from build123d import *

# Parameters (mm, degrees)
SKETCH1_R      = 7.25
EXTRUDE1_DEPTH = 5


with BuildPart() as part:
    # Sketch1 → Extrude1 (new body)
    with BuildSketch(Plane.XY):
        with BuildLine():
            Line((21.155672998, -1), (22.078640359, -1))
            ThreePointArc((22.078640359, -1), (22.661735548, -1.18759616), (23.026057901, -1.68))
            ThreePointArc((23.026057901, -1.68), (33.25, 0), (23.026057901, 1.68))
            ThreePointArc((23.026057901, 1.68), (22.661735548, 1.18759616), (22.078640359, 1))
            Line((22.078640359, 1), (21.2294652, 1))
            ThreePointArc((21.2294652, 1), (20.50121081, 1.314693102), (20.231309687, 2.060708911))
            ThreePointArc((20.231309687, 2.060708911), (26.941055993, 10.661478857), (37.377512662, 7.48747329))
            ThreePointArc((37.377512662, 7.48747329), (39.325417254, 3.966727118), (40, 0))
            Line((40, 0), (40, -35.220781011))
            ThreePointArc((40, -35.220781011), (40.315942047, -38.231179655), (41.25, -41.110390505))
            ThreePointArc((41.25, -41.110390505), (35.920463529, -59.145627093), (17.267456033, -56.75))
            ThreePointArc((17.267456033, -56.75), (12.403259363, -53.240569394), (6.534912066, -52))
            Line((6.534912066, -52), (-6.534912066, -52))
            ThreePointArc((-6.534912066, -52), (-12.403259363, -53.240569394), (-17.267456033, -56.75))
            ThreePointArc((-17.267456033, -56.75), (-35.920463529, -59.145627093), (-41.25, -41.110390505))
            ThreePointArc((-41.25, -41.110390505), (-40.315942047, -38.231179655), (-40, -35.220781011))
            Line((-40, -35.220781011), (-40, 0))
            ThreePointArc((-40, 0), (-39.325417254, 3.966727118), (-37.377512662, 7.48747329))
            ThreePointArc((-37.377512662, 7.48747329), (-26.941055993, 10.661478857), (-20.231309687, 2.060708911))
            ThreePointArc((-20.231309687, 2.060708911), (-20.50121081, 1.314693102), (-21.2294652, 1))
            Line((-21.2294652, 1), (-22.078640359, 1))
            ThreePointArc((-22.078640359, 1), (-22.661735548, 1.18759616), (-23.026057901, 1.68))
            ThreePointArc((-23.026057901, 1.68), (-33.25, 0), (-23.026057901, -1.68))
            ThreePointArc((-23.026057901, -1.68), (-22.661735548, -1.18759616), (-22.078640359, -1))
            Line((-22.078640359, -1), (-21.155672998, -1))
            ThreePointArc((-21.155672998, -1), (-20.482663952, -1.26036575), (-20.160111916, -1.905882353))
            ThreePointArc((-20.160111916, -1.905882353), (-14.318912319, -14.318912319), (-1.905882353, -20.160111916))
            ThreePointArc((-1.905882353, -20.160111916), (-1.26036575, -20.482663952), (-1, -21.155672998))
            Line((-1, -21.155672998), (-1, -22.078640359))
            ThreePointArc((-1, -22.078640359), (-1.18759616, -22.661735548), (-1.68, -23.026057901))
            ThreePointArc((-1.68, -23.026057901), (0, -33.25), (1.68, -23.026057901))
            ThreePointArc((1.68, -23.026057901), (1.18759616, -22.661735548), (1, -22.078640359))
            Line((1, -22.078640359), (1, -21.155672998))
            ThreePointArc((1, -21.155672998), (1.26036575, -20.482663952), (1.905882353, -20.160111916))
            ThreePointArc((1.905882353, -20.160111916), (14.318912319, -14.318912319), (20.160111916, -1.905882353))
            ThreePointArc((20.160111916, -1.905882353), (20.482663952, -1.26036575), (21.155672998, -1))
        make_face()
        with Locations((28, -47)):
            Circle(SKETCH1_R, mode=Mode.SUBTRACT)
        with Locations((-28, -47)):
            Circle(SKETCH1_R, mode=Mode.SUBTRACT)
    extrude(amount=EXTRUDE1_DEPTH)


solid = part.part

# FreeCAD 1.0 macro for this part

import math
import FreeCAD as App
import Part
import Sketcher

V = App.Vector
Q = App.Units.Quantity

doc = App.newDocument("Part")
body = doc.addObject("PartDesign::Body", "Body")

sketch1 = doc.addObject("Sketcher::SketchObject", "Sketch")
body.addObject(sketch1)
sketch1.AttachmentSupport = (doc.XY_Plane, [""])
sketch1.MapMode = "FlatFace"
sketch1.addGeometry(Part.LineSegment(V(22.07864, -1, 0), V(21.155673, -1, 0)), False)
sketch1.addGeometry(Part.ArcOfCircle(Part.Circle(V(21.155673, -2, 0), V(0, 0, 1), 1), math.radians(90), math.radians(174.599463)), False)
sketch1.addGeometry(Part.ArcOfCircle(Part.Circle(V(0, 0, 0), V(0, 0, 1), 20.25), math.radians(-84.599463), math.radians(-5.400537)), False)
sketch1.addGeometry(Part.ArcOfCircle(Part.Circle(V(2, -21.155673, 0), V(0, 0, 1), 1), math.radians(95.400537), math.radians(180)), False)
sketch1.addGeometry(Part.LineSegment(V(1, -21.155673, 0), V(1, -22.07864, 0)), False)
sketch1.addGeometry(Part.ArcOfCircle(Part.Circle(V(2, -22.07864, 0), V(0, 0, 1), 1), math.radians(-180), math.radians(-108.662925)), False)
sketch1.addGeometry(Part.ArcOfCircle(Part.Circle(V(0, -28, 0), V(0, 0, 1), 5.25), math.radians(108.662925), math.radians(431.337075)), False)
sketch1.addGeometry(Part.ArcOfCircle(Part.Circle(V(-2, -22.07864, 0), V(0, 0, 1), 1), math.radians(-71.337075), math.radians(0)), False)
sketch1.addGeometry(Part.LineSegment(V(-1, -22.07864, 0), V(-1, -21.155673, 0)), False)
sketch1.addGeometry(Part.ArcOfCircle(Part.Circle(V(-2, -21.155673, 0), V(0, 0, 1), 1), math.radians(0), math.radians(84.599463)), False)
sketch1.addGeometry(Part.ArcOfCircle(Part.Circle(V(0, 0, 0), V(0, 0, 1), 20.25), math.radians(-174.599463), math.radians(-95.400537)), False)
sketch1.addGeometry(Part.ArcOfCircle(Part.Circle(V(-21.155673, -2, 0), V(0, 0, 1), 1), math.radians(5.400537), math.radians(90)), False)
sketch1.addGeometry(Part.LineSegment(V(-21.155673, -1, 0), V(-22.07864, -1, 0)), False)
sketch1.addGeometry(Part.ArcOfCircle(Part.Circle(V(-22.07864, -2, 0), V(0, 0, 1), 1), math.radians(90), math.radians(161.337075)), False)
sketch1.addGeometry(Part.ArcOfCircle(Part.Circle(V(-28, 0, 0), V(0, 0, 1), 5.25), math.radians(18.662925), math.radians(341.337075)), False)
sketch1.addGeometry(Part.ArcOfCircle(Part.Circle(V(-22.07864, 2, 0), V(0, 0, 1), 1), math.radians(-161.337075), math.radians(-90)), False)
sketch1.addGeometry(Part.LineSegment(V(-22.07864, 1, 0), V(-21.229465, 1, 0)), False)
sketch1.addGeometry(Part.ArcOfCircle(Part.Circle(V(-21.229465, 2, 0), V(0, 0, 1), 1), math.radians(-90), math.radians(3.480505)), False)
sketch1.addGeometry(Part.ArcOfCircle(Part.Circle(V(-29.848321, 1.475792, 0), V(0, 0, 1), 9.634783), math.radians(3.480505), math.radians(141.394391)), False)
sketch1.addGeometry(Part.ArcOfCircle(Part.Circle(V(-28, 0, 0), V(0, 0, 1), 12), math.radians(141.394391), math.radians(180)), False)
sketch1.addGeometry(Part.LineSegment(V(-40, 0, 0), V(-40, -35.220781, 0)), False)
sketch1.addGeometry(Part.ArcOfCircle(Part.Circle(V(-54.5, -35.220781, 0), V(0, 0, 1), 14.5), math.radians(-23.965091), math.radians(0)), False)
sketch1.addGeometry(Part.ArcOfCircle(Part.Circle(V(-28, -47, 0), V(0, 0, 1), 14.5), math.radians(156.034909), math.radians(317.746363)), False)
sketch1.addGeometry(Part.ArcOfCircle(Part.Circle(V(-6.534912, -66.5, 0), V(0, 0, 1), 14.5), math.radians(90), math.radians(137.746363)), False)
sketch1.addGeometry(Part.LineSegment(V(-6.534912, -52, 0), V(6.534912, -52, 0)), False)
sketch1.addGeometry(Part.ArcOfCircle(Part.Circle(V(6.534912, -66.5, 0), V(0, 0, 1), 14.5), math.radians(42.253637), math.radians(90)), False)
sketch1.addGeometry(Part.ArcOfCircle(Part.Circle(V(28, -47, 0), V(0, 0, 1), 14.5), math.radians(-137.746363), math.radians(23.965091)), False)
sketch1.addGeometry(Part.ArcOfCircle(Part.Circle(V(54.5, -35.220781, 0), V(0, 0, 1), 14.5), math.radians(180), math.radians(203.965091)), False)
sketch1.addGeometry(Part.LineSegment(V(40, -35.220781, 0), V(40, 0, 0)), False)
sketch1.addGeometry(Part.ArcOfCircle(Part.Circle(V(28, 0, 0), V(0, 0, 1), 12), math.radians(0), math.radians(38.605609)), False)
sketch1.addGeometry(Part.ArcOfCircle(Part.Circle(V(29.848321, 1.475792, 0), V(0, 0, 1), 9.634783), math.radians(38.605609), math.radians(176.519495)), False)
sketch1.addGeometry(Part.ArcOfCircle(Part.Circle(V(21.229465, 2, 0), V(0, 0, 1), 1), math.radians(176.519495), math.radians(270)), False)
sketch1.addGeometry(Part.LineSegment(V(21.229465, 1, 0), V(22.07864, 1, 0)), False)
sketch1.addGeometry(Part.ArcOfCircle(Part.Circle(V(22.07864, 2, 0), V(0, 0, 1), 1), math.radians(-90), math.radians(-18.662925)), False)
sketch1.addGeometry(Part.ArcOfCircle(Part.Circle(V(28, 0, 0), V(0, 0, 1), 5.25), math.radians(-161.337075), math.radians(161.337075)), False)
sketch1.addGeometry(Part.ArcOfCircle(Part.Circle(V(22.07864, -2, 0), V(0, 0, 1), 1), math.radians(18.662925), math.radians(90)), False)
sketch1.addGeometry(Part.Circle(V(28, -47, 0), V(0, 0, 1), 7.25), False)
sketch1.addGeometry(Part.Circle(V(-28, -47, 0), V(0, 0, 1), 7.25), False)
sketch1.addConstraint(Sketcher.Constraint("Tangent", 0, 2, 1, 1))
sketch1.addConstraint(Sketcher.Constraint("Tangent", 1, 2, 2, 2))
sketch1.addConstraint(Sketcher.Constraint("Tangent", 2, 1, 3, 1))
sketch1.addConstraint(Sketcher.Constraint("Tangent", 3, 2, 4, 1))
sketch1.addConstraint(Sketcher.Constraint("Tangent", 4, 2, 5, 1))
sketch1.addConstraint(Sketcher.Constraint("Tangent", 5, 2, 6, 2))
sketch1.addConstraint(Sketcher.Constraint("Tangent", 6, 1, 7, 1))
sketch1.addConstraint(Sketcher.Constraint("Tangent", 7, 2, 8, 1))
sketch1.addConstraint(Sketcher.Constraint("Tangent", 8, 2, 9, 1))
sketch1.addConstraint(Sketcher.Constraint("Tangent", 9, 2, 10, 2))
sketch1.addConstraint(Sketcher.Constraint("Tangent", 10, 1, 11, 1))
sketch1.addConstraint(Sketcher.Constraint("Tangent", 11, 2, 12, 1))
sketch1.addConstraint(Sketcher.Constraint("Tangent", 12, 2, 13, 1))
sketch1.addConstraint(Sketcher.Constraint("Tangent", 13, 2, 14, 2))
sketch1.addConstraint(Sketcher.Constraint("Tangent", 14, 1, 15, 1))
sketch1.addConstraint(Sketcher.Constraint("Tangent", 15, 2, 16, 1))
sketch1.addConstraint(Sketcher.Constraint("Tangent", 16, 2, 17, 1))
sketch1.addConstraint(Sketcher.Constraint("Tangent", 17, 2, 18, 1))
sketch1.addConstraint(Sketcher.Constraint("Tangent", 18, 2, 19, 1))
sketch1.addConstraint(Sketcher.Constraint("Tangent", 19, 2, 20, 1))
sketch1.addConstraint(Sketcher.Constraint("Tangent", 20, 2, 21, 2))
sketch1.addConstraint(Sketcher.Constraint("Tangent", 21, 1, 22, 1))
sketch1.addConstraint(Sketcher.Constraint("Tangent", 22, 2, 23, 2))
sketch1.addConstraint(Sketcher.Constraint("Tangent", 23, 1, 24, 1))
sketch1.addConstraint(Sketcher.Constraint("Tangent", 24, 2, 25, 2))
sketch1.addConstraint(Sketcher.Constraint("Tangent", 25, 1, 26, 1))
sketch1.addConstraint(Sketcher.Constraint("Tangent", 26, 2, 27, 2))
sketch1.addConstraint(Sketcher.Constraint("Tangent", 27, 1, 28, 1))
sketch1.addConstraint(Sketcher.Constraint("Tangent", 28, 2, 29, 1))
sketch1.addConstraint(Sketcher.Constraint("Tangent", 29, 2, 30, 1))
sketch1.addConstraint(Sketcher.Constraint("Tangent", 30, 2, 31, 1))
sketch1.addConstraint(Sketcher.Constraint("Tangent", 31, 2, 32, 1))
sketch1.addConstraint(Sketcher.Constraint("Tangent", 32, 2, 33, 1))
sketch1.addConstraint(Sketcher.Constraint("Tangent", 33, 2, 34, 2))
sketch1.addConstraint(Sketcher.Constraint("Tangent", 34, 1, 35, 1))
sketch1.addConstraint(Sketcher.Constraint("Tangent", 35, 2, 0, 1))
sketch1.addConstraint(Sketcher.Constraint("Horizontal", 0))
sketch1.addConstraint(Sketcher.Constraint("Vertical", 4))
sketch1.addConstraint(Sketcher.Constraint("Vertical", 8))
sketch1.addConstraint(Sketcher.Constraint("Horizontal", 12))
sketch1.addConstraint(Sketcher.Constraint("Horizontal", 16))
sketch1.addConstraint(Sketcher.Constraint("Vertical", 20))
sketch1.addConstraint(Sketcher.Constraint("Horizontal", 24))
sketch1.addConstraint(Sketcher.Constraint("Vertical", 28))
sketch1.addConstraint(Sketcher.Constraint("Horizontal", 32))
sketch1.addConstraint(Sketcher.Constraint("Coincident", 2, 3, -1, 1))
sketch1.addConstraint(Sketcher.Constraint("Coincident", 10, 3, -1, 1))
sketch1.addConstraint(Sketcher.Constraint("Coincident", 19, 3, 14, 3))
sketch1.addConstraint(Sketcher.Constraint("Coincident", 34, 3, 29, 3))
sketch1.addConstraint(Sketcher.Constraint("Coincident", 36, 3, 26, 3))
sketch1.addConstraint(Sketcher.Constraint("Coincident", 37, 3, 22, 3))
sketch1.addConstraint(Sketcher.Constraint("Equal", 1, 3))
sketch1.addConstraint(Sketcher.Constraint("Equal", 3, 5))
sketch1.addConstraint(Sketcher.Constraint("Equal", 5, 7))
sketch1.addConstraint(Sketcher.Constraint("Equal", 7, 9))
sketch1.addConstraint(Sketcher.Constraint("Equal", 2, 10))
sketch1.addConstraint(Sketcher.Constraint("Equal", 9, 11))
sketch1.addConstraint(Sketcher.Constraint("Equal", 11, 13))
sketch1.addConstraint(Sketcher.Constraint("Equal", 6, 14))
sketch1.addConstraint(Sketcher.Constraint("Equal", 13, 15))
sketch1.addConstraint(Sketcher.Constraint("Equal", 15, 17))
sketch1.addConstraint(Sketcher.Constraint("Equal", 21, 22))
sketch1.addConstraint(Sketcher.Constraint("Equal", 22, 23))
sketch1.addConstraint(Sketcher.Constraint("Equal", 23, 25))
sketch1.addConstraint(Sketcher.Constraint("Equal", 25, 26))
sketch1.addConstraint(Sketcher.Constraint("Equal", 26, 27))
sketch1.addConstraint(Sketcher.Constraint("Equal", 19, 29))
sketch1.addConstraint(Sketcher.Constraint("Equal", 18, 30))
sketch1.addConstraint(Sketcher.Constraint("Equal", 17, 31))
sketch1.addConstraint(Sketcher.Constraint("Equal", 31, 33))
sketch1.addConstraint(Sketcher.Constraint("Equal", 14, 34))
sketch1.addConstraint(Sketcher.Constraint("Equal", 33, 35))
sketch1.addConstraint(Sketcher.Constraint("Equal", 36, 37))
sketch1.addConstraint(Sketcher.Constraint("Symmetric", 14, 3, 29, 3, -1, 1))
sketch1.addConstraint(Sketcher.Constraint("Symmetric", 5, 3, 7, 3, -2))
sketch1.addConstraint(Sketcher.Constraint("Symmetric", 22, 3, 26, 3, -2))
sketch1.addConstraint(Sketcher.Constraint("Symmetric", 18, 3, 30, 3, -2))
sketch1.addConstraint(Sketcher.Constraint("Horizontal", 1, 3, 11, 3))
sketch1.addConstraint(Sketcher.Constraint("Horizontal", 17, 3, 31, 3))
sketch1.addConstraint(Sketcher.Constraint("Vertical", 13, 3, 15, 3))
sketch1.addConstraint(Sketcher.Constraint("Vertical", 19, 3, 22, 3))
sketch1.addConstraint(Sketcher.Constraint("Equal", 12, 4))
sketch1.addConstraint(Sketcher.Constraint("Radius", 1, Q("1 mm")))
sketch1.addConstraint(Sketcher.Constraint("Radius", 19, Q("12 mm")))
sketch1.addConstraint(Sketcher.Constraint("Diameter", 36, Q("14.5 mm")))
sketch1.addConstraint(Sketcher.Constraint("Radius", 21, Q("14.5 mm")))
sketch1.addConstraint(Sketcher.Constraint("Radius", 2, Q("20.25 mm")))
sketch1.addConstraint(Sketcher.Constraint("Radius", 6, Q("5.25 mm")))
sketch1.addConstraint(Sketcher.Constraint("DistanceY", 1, 3, -1, 1, Q("2 mm")))
sketch1.addConstraint(Sketcher.Constraint("DistanceX", -1, 1, 3, 3, Q("2 mm")))
sketch1.addConstraint(Sketcher.Constraint("DistanceY", 6, 3, -1, 1, Q("28 mm")))
sketch1.addConstraint(Sketcher.Constraint("DistanceY", 22, 3, -1, 1, Q("47 mm")))
sketch1.addConstraint(Sketcher.Constraint("DistanceY", 23, 1, -1, 1, Q("52 mm")))
sketch1.addConstraint(Sketcher.Constraint("Radius", 18, Q("9.634783 mm")))
sketch1.addConstraint(Sketcher.Constraint("DistanceX", 16, 1, 16, 2, Q("0.849175 mm")))
pad1 = doc.addObject("PartDesign::Pad", "Pad")
body.addObject(pad1)
pad1.Profile = sketch1
pad1.Length = 5

doc.recompute()
